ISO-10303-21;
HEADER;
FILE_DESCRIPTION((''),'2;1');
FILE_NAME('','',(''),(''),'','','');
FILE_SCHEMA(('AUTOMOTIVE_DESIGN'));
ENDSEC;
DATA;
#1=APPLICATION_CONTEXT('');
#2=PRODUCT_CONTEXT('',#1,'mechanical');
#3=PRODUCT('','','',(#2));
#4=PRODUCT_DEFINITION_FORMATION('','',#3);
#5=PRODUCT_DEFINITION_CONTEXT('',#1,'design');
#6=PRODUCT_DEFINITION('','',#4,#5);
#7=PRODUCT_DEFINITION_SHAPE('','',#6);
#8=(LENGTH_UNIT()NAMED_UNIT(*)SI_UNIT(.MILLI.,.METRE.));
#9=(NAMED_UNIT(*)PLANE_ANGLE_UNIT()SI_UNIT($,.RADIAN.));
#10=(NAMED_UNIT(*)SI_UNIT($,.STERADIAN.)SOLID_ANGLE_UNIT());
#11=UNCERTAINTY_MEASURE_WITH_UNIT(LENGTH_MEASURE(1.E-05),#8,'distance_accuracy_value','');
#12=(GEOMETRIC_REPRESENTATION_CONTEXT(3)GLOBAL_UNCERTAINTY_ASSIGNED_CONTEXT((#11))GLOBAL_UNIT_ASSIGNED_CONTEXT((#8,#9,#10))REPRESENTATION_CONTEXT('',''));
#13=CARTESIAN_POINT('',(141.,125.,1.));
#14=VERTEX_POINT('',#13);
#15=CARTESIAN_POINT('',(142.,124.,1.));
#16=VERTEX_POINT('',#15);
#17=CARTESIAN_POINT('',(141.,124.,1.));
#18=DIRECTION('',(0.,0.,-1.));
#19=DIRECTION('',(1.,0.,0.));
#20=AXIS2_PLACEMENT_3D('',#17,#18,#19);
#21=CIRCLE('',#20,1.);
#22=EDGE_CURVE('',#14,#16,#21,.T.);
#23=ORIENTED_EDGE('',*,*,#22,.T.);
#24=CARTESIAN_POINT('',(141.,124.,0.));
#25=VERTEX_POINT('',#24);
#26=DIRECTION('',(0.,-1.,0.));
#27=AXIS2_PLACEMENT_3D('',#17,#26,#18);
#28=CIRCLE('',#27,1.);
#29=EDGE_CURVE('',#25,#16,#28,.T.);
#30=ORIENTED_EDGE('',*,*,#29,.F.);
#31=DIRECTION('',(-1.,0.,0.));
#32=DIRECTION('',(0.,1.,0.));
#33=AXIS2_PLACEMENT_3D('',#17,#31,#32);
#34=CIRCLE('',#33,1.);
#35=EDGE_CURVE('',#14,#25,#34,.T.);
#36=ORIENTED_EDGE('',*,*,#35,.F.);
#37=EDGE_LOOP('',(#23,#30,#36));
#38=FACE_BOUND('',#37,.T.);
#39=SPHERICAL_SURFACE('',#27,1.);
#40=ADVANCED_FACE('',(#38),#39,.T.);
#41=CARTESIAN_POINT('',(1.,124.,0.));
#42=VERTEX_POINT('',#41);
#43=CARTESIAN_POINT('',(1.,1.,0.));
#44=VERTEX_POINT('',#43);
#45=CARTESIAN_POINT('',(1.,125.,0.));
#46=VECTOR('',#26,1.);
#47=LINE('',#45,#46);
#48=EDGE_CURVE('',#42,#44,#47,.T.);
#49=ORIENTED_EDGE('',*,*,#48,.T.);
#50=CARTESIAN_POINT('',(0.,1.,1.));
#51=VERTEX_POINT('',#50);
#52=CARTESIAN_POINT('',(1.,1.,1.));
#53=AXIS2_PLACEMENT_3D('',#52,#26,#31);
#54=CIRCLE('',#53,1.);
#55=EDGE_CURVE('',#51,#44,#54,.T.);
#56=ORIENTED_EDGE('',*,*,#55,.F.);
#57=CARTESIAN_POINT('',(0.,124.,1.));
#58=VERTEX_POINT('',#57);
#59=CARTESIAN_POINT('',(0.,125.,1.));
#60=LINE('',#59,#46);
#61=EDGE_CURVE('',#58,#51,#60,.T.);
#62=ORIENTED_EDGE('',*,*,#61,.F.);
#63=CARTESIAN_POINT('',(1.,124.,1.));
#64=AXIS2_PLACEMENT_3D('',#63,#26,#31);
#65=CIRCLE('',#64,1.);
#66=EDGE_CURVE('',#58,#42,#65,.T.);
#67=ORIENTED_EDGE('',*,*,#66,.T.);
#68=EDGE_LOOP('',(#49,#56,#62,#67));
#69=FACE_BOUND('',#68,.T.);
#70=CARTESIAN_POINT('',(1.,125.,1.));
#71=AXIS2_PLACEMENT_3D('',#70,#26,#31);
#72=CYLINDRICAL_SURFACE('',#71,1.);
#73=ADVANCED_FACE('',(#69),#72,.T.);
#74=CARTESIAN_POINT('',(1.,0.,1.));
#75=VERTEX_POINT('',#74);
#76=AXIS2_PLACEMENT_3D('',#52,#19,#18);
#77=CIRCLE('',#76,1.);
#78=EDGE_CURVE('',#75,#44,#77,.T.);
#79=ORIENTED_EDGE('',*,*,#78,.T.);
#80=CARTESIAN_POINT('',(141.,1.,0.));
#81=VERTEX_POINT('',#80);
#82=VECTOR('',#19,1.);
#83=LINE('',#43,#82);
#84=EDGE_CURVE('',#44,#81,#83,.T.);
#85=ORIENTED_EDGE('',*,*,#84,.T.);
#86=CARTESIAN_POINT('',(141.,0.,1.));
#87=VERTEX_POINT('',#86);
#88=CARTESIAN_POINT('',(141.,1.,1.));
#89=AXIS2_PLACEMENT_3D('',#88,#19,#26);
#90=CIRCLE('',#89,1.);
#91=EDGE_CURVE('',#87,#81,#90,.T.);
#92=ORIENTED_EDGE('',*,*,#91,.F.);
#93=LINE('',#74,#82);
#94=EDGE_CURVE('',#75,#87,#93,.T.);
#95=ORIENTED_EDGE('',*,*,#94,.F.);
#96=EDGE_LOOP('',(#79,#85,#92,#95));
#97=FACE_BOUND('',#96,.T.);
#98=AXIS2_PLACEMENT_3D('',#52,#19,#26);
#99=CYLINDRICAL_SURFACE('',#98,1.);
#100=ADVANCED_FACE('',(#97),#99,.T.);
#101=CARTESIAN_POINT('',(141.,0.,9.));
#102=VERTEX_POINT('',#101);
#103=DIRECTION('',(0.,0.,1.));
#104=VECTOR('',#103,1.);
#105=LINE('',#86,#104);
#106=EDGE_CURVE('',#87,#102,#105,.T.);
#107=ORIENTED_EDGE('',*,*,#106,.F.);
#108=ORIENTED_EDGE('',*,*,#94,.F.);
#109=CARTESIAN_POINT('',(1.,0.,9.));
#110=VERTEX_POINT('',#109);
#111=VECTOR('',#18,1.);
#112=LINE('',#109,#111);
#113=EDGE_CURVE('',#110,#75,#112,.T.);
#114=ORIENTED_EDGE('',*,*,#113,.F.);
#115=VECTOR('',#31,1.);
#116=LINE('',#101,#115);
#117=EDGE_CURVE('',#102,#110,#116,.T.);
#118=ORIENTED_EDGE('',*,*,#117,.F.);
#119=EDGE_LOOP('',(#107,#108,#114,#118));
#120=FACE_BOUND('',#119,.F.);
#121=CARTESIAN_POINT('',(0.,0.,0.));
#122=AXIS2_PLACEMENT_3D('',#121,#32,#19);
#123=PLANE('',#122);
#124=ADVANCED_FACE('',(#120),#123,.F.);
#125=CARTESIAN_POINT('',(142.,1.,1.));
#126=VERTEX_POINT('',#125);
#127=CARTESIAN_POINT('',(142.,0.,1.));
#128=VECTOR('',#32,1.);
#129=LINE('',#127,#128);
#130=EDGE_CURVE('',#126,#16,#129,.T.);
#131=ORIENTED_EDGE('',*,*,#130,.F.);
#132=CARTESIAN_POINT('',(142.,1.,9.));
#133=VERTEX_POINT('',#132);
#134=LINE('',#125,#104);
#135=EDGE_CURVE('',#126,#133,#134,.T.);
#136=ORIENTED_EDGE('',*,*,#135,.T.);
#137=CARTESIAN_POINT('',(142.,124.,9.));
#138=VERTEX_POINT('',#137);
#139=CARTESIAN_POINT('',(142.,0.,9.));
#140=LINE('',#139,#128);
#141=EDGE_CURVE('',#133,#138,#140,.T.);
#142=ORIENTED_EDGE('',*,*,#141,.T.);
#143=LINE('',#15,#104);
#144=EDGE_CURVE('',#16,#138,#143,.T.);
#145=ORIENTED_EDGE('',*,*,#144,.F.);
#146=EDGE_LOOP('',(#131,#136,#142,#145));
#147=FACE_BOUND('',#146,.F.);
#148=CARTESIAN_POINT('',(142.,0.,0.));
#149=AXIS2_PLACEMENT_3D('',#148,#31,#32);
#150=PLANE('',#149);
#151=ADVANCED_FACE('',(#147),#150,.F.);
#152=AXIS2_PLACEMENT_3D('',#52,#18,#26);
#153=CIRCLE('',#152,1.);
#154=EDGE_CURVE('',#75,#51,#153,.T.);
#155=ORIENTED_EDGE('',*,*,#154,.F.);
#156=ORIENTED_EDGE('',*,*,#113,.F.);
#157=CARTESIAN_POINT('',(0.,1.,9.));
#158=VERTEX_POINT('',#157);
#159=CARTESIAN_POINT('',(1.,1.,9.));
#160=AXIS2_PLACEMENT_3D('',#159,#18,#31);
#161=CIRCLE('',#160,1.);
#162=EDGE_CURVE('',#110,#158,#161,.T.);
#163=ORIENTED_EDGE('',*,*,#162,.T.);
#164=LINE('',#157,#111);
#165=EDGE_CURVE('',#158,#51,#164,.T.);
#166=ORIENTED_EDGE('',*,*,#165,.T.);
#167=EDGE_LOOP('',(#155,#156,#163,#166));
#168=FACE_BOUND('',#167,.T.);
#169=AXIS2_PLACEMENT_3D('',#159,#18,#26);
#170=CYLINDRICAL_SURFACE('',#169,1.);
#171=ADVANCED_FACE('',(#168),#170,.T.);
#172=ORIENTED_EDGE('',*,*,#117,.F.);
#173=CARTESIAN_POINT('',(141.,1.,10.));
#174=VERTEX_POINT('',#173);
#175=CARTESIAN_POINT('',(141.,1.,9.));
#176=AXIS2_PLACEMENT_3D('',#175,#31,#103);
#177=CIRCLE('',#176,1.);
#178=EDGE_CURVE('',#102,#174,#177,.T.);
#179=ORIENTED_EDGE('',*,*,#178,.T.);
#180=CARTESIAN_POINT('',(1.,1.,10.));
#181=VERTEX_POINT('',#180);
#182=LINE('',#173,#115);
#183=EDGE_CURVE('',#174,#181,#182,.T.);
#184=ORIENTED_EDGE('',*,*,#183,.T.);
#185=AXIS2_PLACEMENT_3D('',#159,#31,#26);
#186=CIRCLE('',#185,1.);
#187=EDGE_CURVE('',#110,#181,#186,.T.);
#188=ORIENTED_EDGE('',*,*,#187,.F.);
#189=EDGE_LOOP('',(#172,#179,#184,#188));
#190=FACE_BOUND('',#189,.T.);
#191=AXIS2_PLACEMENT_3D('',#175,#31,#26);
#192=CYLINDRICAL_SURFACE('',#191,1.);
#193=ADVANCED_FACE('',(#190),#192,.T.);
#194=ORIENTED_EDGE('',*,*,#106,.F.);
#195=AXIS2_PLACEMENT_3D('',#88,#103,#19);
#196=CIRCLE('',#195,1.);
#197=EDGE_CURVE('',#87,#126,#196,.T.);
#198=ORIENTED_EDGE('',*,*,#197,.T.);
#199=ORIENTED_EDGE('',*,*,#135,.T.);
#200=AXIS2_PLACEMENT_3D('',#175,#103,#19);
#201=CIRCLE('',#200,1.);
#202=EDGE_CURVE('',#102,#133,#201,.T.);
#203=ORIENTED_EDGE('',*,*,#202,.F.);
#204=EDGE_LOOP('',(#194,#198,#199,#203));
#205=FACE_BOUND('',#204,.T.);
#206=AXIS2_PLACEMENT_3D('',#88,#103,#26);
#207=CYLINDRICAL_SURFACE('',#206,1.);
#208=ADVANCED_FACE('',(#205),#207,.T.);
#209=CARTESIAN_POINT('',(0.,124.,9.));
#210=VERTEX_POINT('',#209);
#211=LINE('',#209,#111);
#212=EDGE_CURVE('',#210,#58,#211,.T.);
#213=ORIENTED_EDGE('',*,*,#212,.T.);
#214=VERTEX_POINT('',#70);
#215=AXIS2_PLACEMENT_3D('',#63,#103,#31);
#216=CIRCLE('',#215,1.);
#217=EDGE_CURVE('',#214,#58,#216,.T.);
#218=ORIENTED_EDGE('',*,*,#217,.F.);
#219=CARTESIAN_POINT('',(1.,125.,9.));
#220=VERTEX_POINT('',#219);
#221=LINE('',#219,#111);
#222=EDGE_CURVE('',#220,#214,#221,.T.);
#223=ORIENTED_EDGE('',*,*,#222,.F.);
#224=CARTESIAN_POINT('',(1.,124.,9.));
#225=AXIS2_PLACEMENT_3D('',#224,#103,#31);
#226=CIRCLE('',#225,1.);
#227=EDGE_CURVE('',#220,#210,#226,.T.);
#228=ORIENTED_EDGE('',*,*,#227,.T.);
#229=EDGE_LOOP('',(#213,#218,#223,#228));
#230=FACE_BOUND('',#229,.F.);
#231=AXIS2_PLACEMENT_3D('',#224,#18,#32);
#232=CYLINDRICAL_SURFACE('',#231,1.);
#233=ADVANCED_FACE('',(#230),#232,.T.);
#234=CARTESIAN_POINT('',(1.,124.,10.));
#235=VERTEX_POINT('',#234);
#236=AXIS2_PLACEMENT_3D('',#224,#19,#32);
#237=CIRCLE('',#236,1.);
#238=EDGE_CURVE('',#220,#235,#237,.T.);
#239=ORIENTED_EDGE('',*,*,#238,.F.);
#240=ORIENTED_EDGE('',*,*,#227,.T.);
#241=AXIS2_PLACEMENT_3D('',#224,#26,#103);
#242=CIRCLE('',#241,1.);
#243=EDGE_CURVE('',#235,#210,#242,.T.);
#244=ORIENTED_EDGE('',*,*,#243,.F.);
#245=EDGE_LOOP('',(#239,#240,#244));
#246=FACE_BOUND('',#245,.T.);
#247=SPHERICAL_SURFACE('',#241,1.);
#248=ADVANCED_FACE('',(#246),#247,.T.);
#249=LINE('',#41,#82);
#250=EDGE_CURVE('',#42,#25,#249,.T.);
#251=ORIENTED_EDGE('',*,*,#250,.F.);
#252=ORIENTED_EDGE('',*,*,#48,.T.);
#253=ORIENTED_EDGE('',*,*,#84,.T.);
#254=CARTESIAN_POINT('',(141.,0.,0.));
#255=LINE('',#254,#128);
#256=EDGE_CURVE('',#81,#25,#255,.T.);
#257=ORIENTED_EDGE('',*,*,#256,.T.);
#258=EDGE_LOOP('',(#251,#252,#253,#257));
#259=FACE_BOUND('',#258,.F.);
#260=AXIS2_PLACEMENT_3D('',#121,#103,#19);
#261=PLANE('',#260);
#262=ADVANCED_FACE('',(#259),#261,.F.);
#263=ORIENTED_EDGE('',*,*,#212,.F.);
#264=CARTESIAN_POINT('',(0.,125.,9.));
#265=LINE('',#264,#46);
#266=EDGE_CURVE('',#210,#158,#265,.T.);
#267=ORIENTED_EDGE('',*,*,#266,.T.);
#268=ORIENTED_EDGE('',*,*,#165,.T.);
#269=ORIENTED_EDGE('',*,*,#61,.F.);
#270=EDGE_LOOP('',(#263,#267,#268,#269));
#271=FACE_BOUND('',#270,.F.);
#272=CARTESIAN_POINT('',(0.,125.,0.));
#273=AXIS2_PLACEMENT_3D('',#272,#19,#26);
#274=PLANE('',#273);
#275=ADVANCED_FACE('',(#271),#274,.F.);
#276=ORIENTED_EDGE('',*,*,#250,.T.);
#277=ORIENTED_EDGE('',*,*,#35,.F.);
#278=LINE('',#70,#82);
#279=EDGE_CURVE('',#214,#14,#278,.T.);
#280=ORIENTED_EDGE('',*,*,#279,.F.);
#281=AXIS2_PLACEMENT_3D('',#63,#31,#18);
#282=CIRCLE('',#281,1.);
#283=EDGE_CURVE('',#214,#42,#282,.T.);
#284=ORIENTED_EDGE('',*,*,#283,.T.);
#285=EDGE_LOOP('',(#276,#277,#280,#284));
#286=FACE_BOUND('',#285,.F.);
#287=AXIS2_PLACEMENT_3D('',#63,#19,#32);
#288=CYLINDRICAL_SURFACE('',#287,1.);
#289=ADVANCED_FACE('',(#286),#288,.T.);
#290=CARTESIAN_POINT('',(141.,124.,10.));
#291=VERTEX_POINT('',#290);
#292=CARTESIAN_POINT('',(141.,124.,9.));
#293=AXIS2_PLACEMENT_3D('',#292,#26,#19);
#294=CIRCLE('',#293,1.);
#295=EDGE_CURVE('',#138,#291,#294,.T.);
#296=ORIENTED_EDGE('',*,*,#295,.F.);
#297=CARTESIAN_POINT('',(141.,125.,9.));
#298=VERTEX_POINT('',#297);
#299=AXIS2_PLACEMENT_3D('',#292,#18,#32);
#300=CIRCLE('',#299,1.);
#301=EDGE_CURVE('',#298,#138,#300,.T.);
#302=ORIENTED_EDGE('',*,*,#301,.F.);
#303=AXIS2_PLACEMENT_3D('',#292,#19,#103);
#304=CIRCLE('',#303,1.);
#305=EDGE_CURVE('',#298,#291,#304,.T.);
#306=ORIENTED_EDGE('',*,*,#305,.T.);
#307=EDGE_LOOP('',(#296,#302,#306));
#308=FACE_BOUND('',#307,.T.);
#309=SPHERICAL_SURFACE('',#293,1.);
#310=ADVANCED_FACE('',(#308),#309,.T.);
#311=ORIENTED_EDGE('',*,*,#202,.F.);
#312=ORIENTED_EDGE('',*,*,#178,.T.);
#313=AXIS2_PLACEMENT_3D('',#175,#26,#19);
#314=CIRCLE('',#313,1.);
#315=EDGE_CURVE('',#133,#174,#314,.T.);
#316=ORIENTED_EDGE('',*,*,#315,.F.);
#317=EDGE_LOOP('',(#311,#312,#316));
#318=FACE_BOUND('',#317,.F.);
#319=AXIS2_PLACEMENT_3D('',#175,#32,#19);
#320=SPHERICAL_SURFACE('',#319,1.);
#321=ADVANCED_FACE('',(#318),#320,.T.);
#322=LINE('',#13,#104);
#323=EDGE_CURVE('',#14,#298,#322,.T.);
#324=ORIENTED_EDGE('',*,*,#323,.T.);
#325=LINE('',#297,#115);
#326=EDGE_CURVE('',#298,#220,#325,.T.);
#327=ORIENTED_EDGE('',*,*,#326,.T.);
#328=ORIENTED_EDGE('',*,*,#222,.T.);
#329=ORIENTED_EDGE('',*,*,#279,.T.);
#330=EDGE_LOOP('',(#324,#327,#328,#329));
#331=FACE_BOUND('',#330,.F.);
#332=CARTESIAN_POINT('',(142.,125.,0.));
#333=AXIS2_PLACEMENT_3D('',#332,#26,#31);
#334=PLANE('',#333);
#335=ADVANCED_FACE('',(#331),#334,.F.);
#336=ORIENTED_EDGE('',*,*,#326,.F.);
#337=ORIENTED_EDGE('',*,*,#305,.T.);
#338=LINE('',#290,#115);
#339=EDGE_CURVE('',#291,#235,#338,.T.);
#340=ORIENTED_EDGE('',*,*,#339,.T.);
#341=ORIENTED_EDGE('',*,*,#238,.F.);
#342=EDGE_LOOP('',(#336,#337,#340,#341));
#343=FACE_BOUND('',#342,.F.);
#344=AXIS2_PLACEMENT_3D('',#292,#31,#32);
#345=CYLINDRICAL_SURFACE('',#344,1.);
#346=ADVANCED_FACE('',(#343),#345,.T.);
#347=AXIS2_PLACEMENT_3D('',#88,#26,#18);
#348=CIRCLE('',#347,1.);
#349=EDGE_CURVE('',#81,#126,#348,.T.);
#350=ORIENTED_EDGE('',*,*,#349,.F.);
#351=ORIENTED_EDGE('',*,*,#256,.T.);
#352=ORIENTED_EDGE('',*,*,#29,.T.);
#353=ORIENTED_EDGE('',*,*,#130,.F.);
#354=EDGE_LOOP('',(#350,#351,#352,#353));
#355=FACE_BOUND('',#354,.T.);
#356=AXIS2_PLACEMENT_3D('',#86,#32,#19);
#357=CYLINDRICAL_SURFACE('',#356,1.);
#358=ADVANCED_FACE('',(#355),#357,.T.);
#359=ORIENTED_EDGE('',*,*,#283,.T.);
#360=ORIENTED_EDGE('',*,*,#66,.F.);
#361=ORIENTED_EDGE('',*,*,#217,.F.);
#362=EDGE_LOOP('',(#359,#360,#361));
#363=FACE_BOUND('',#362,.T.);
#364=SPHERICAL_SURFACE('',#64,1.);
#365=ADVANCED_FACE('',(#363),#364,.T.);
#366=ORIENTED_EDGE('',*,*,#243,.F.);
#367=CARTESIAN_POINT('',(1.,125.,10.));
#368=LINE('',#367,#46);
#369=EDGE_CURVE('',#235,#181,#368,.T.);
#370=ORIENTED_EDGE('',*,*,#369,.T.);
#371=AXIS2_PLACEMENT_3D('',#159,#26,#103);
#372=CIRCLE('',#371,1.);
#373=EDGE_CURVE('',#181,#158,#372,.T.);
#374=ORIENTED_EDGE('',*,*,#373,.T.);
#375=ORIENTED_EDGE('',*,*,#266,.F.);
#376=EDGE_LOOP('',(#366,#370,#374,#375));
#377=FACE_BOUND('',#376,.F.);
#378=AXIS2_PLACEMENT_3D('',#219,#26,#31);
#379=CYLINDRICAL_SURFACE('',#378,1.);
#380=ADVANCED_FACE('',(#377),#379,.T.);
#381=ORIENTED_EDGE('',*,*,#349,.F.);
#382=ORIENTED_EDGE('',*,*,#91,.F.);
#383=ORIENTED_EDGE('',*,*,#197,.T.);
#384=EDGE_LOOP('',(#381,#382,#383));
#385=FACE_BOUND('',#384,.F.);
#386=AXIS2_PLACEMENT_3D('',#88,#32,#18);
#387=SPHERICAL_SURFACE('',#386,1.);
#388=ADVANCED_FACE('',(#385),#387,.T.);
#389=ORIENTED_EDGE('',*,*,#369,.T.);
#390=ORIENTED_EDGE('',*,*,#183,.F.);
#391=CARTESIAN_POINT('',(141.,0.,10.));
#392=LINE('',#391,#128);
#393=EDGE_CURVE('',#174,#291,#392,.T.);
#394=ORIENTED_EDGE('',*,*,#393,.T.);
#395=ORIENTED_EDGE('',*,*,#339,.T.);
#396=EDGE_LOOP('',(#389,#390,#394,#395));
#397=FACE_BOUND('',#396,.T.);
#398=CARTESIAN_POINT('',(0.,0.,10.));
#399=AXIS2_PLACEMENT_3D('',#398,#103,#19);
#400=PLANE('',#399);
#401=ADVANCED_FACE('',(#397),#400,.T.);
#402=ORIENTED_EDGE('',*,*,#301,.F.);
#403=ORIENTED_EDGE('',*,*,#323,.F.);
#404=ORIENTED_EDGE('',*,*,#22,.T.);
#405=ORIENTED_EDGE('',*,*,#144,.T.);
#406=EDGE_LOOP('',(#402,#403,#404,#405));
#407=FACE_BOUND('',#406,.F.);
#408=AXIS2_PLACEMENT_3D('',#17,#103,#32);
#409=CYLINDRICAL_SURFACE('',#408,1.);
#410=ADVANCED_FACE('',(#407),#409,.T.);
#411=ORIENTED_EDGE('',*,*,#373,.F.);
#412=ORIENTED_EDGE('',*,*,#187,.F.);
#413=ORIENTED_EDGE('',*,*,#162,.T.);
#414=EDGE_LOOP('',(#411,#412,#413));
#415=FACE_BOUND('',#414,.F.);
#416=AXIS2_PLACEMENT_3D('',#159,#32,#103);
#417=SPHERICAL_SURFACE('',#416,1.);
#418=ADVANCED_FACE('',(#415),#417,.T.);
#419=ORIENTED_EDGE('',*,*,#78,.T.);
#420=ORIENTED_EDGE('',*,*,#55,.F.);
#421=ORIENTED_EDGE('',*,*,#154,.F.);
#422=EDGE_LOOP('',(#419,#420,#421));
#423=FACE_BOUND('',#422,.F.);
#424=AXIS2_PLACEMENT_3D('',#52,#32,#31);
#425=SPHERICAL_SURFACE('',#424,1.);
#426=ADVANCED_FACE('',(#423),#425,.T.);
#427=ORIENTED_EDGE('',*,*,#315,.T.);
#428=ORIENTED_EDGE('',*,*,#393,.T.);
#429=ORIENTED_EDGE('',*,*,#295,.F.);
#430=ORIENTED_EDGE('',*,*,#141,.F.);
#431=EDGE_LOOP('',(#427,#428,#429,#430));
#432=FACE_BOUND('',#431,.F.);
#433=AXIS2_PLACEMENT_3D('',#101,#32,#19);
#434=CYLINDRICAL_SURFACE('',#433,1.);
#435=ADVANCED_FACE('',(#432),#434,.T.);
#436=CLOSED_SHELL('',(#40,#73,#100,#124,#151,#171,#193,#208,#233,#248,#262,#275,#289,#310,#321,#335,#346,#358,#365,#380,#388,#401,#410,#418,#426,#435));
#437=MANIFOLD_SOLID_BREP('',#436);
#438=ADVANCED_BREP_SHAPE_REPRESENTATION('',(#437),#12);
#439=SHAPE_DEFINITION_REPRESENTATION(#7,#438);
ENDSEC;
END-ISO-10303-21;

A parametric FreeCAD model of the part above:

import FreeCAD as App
import Part
import Sketcher
Q = App.Units.Quantity


def edges_at(feature, points):
    """Names of the edges that pass closest to the given points."""
    edges = feature.Shape.Edges
    near = lambda p: min(range(len(edges)), key=lambda i: edges[i].distToShape(Part.Vertex(*p))[0])
    return sorted({f"Edge{near(p) + 1}" for p in points})


def add_polygon(sketch, points):
    """Adds a closed chain of lines whose ends are joined by coincident constraints."""
    first, n = sketch.GeometryCount, len(points)
    for a, b in zip(points, points[1:] + points[:1]):
        sketch.addGeometry(Part.LineSegment(App.Vector(*a, 0), App.Vector(*b, 0)), False)
    for i in range(n):
        sketch.addConstraint(Sketcher.Constraint("Coincident", first + i, 2, first + (i + 1) % n, 1))

doc = App.newDocument("Part")
body = doc.addObject("PartDesign::Body", "Body")

sketch1 = body.newObject("Sketcher::SketchObject", "Sketch")
sketch1.AttachmentSupport = (doc.getObject("XY_Plane"), [""])
sketch1.MapMode = "FlatFace"
add_polygon(sketch1, [(0, 125), (0, 0), (142, 0), (142, 125)])
sketch1.addConstraint(Sketcher.Constraint("Vertical", 0))
sketch1.addConstraint(Sketcher.Constraint("Horizontal", 1))
sketch1.addConstraint(Sketcher.Constraint("Vertical", 2))
sketch1.addConstraint(Sketcher.Constraint("Horizontal", 3))
sketch1.addConstraint(Sketcher.Constraint("Coincident", 0, 2, -1, 1))
sketch1.addConstraint(Sketcher.Constraint("DistanceX", 1, 1, 1, 2, Q("142 mm")))
sketch1.addConstraint(Sketcher.Constraint("DistanceY", 0, 2, 0, 1, Q("125 mm")))
pad1 = body.newObject("PartDesign::Pad", "Pad")
pad1.Profile = sketch1
pad1.Length = 10
doc.recompute()

fillet = body.newObject("PartDesign::Fillet", "Fillet")
fillet.Base = (pad1, edges_at(pad1, [
    (0, 62.5, 10),
    (142, 62.5, 10),
    (142, 62.5, 0),
    (0, 62.5, 0),
]))
fillet.Radius = 1
doc.recompute()

fillet2 = body.newObject("PartDesign::Fillet", "Fillet001")
fillet2.Base = (fillet, edges_at(fillet, [
    (0.293, 125, 0.293),
    (0, 125, 5),
    (0.293, 125, 9.707),
    (71, 125, 10),
    (141.707, 125, 9.707),
    (142, 125, 5),
    (141.707, 125, 0.293),
    (71, 125, 0),
    (141.707, 0, 9.707),
    (142, 0, 5),
    (141.707, 0, 0.293),
    (71, 0, 0),
    (0.293, 0, 0.293),
    (0, 0, 5),
    (0.293, 0, 9.707),
    (71, 0, 10),
]))
fillet2.Radius = 1

doc.recompute()
